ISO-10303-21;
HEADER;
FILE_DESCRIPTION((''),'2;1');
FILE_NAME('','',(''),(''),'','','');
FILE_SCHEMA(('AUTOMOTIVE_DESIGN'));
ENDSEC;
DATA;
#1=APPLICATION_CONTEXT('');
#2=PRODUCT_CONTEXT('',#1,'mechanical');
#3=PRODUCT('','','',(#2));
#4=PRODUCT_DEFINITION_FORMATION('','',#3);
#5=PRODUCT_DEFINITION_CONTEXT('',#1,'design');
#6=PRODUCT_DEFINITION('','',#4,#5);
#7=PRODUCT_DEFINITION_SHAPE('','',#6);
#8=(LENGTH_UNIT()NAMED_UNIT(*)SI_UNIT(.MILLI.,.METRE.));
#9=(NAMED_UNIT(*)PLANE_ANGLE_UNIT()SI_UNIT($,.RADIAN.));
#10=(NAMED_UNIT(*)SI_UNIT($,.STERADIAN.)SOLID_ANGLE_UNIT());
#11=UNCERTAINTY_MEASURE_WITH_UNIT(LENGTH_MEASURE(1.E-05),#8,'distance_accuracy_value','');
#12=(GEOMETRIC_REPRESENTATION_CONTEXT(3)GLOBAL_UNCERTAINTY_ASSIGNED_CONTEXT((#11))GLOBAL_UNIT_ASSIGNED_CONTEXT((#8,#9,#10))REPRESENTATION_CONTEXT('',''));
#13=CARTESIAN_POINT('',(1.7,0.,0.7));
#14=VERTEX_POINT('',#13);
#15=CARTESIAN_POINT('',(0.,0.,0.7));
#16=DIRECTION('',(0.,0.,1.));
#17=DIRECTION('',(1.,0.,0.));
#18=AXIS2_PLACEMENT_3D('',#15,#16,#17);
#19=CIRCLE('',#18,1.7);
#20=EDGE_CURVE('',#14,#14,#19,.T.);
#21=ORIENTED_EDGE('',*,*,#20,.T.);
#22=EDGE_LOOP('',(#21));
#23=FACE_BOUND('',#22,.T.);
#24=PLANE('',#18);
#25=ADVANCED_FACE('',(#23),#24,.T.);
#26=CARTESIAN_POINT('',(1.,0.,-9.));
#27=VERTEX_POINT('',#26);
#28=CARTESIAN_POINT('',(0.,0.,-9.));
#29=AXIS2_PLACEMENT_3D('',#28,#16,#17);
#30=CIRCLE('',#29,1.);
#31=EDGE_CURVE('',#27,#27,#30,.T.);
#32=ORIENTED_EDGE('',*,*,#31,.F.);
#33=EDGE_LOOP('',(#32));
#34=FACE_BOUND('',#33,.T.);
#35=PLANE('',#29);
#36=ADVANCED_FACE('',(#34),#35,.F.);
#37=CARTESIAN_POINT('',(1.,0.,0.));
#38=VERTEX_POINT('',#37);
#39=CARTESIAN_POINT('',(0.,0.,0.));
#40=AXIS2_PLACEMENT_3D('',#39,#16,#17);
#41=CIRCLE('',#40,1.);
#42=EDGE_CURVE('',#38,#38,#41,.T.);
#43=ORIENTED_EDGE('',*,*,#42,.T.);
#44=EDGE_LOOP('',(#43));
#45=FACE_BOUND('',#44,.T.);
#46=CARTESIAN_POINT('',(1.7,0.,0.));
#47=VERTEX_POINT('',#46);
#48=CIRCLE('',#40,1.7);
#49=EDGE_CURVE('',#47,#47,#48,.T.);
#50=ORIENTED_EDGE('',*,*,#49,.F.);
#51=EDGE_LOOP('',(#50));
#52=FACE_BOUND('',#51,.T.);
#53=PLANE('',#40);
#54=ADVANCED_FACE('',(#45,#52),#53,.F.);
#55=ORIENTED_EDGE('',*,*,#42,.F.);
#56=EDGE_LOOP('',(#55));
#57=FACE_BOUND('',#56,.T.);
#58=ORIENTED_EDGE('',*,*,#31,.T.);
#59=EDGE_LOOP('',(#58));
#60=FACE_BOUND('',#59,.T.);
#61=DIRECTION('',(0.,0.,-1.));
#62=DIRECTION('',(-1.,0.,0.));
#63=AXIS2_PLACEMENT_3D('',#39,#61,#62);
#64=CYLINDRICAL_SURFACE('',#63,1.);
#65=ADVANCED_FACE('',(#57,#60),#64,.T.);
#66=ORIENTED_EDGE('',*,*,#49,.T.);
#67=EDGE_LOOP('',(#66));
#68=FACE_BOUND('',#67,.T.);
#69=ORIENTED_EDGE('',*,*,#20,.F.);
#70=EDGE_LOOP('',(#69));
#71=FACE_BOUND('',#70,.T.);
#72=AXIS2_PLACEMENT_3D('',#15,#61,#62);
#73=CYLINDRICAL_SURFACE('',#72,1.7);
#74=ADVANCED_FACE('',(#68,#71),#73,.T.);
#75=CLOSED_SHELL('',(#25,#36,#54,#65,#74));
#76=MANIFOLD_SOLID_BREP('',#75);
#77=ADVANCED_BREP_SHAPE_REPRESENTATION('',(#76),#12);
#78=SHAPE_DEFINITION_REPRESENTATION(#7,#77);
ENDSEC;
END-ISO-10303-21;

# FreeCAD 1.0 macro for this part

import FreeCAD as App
import Part
import Sketcher

doc = App.newDocument("Part")
body = doc.addObject("PartDesign::Body", "Body")

sketch1 = body.newObject("Sketcher::SketchObject", "Sketch")
sketch1.AttachmentSupport = (doc.getObject("XY_Plane"), [""])
sketch1.MapMode = "FlatFace"
sketch1.AttachmentOffset = App.Placement(App.Vector(0, 0, -9), App.Rotation())
sketch1.addGeometry(Part.Circle(App.Vector(0, 0, 0), App.Vector(0, 0, 1), 1), False)
sketch1.addConstraint(Sketcher.Constraint("Coincident", 0, 3, -1, 1))
sketch1.addConstraint(Sketcher.Constraint("Diameter", 0, 2.0))
pad1 = body.newObject("PartDesign::Pad", "Pad")
pad1.Profile = sketch1
pad1.Length = 9

sketch2 = body.newObject("Sketcher::SketchObject", "Sketch001")
sketch2.AttachmentSupport = (doc.getObject("XY_Plane"), [""])
sketch2.MapMode = "FlatFace"
sketch2.addGeometry(Part.Circle(App.Vector(0, 0, 0), App.Vector(0, 0, 1), 1.7), False)
sketch2.addConstraint(Sketcher.Constraint("Coincident", 0, 3, -1, 1))
sketch2.addConstraint(Sketcher.Constraint("Diameter", 0, 3.4))
pad2 = body.newObject("PartDesign::Pad", "Pad001")
pad2.Profile = sketch2
pad2.Length = 0.7

doc.recompute()
